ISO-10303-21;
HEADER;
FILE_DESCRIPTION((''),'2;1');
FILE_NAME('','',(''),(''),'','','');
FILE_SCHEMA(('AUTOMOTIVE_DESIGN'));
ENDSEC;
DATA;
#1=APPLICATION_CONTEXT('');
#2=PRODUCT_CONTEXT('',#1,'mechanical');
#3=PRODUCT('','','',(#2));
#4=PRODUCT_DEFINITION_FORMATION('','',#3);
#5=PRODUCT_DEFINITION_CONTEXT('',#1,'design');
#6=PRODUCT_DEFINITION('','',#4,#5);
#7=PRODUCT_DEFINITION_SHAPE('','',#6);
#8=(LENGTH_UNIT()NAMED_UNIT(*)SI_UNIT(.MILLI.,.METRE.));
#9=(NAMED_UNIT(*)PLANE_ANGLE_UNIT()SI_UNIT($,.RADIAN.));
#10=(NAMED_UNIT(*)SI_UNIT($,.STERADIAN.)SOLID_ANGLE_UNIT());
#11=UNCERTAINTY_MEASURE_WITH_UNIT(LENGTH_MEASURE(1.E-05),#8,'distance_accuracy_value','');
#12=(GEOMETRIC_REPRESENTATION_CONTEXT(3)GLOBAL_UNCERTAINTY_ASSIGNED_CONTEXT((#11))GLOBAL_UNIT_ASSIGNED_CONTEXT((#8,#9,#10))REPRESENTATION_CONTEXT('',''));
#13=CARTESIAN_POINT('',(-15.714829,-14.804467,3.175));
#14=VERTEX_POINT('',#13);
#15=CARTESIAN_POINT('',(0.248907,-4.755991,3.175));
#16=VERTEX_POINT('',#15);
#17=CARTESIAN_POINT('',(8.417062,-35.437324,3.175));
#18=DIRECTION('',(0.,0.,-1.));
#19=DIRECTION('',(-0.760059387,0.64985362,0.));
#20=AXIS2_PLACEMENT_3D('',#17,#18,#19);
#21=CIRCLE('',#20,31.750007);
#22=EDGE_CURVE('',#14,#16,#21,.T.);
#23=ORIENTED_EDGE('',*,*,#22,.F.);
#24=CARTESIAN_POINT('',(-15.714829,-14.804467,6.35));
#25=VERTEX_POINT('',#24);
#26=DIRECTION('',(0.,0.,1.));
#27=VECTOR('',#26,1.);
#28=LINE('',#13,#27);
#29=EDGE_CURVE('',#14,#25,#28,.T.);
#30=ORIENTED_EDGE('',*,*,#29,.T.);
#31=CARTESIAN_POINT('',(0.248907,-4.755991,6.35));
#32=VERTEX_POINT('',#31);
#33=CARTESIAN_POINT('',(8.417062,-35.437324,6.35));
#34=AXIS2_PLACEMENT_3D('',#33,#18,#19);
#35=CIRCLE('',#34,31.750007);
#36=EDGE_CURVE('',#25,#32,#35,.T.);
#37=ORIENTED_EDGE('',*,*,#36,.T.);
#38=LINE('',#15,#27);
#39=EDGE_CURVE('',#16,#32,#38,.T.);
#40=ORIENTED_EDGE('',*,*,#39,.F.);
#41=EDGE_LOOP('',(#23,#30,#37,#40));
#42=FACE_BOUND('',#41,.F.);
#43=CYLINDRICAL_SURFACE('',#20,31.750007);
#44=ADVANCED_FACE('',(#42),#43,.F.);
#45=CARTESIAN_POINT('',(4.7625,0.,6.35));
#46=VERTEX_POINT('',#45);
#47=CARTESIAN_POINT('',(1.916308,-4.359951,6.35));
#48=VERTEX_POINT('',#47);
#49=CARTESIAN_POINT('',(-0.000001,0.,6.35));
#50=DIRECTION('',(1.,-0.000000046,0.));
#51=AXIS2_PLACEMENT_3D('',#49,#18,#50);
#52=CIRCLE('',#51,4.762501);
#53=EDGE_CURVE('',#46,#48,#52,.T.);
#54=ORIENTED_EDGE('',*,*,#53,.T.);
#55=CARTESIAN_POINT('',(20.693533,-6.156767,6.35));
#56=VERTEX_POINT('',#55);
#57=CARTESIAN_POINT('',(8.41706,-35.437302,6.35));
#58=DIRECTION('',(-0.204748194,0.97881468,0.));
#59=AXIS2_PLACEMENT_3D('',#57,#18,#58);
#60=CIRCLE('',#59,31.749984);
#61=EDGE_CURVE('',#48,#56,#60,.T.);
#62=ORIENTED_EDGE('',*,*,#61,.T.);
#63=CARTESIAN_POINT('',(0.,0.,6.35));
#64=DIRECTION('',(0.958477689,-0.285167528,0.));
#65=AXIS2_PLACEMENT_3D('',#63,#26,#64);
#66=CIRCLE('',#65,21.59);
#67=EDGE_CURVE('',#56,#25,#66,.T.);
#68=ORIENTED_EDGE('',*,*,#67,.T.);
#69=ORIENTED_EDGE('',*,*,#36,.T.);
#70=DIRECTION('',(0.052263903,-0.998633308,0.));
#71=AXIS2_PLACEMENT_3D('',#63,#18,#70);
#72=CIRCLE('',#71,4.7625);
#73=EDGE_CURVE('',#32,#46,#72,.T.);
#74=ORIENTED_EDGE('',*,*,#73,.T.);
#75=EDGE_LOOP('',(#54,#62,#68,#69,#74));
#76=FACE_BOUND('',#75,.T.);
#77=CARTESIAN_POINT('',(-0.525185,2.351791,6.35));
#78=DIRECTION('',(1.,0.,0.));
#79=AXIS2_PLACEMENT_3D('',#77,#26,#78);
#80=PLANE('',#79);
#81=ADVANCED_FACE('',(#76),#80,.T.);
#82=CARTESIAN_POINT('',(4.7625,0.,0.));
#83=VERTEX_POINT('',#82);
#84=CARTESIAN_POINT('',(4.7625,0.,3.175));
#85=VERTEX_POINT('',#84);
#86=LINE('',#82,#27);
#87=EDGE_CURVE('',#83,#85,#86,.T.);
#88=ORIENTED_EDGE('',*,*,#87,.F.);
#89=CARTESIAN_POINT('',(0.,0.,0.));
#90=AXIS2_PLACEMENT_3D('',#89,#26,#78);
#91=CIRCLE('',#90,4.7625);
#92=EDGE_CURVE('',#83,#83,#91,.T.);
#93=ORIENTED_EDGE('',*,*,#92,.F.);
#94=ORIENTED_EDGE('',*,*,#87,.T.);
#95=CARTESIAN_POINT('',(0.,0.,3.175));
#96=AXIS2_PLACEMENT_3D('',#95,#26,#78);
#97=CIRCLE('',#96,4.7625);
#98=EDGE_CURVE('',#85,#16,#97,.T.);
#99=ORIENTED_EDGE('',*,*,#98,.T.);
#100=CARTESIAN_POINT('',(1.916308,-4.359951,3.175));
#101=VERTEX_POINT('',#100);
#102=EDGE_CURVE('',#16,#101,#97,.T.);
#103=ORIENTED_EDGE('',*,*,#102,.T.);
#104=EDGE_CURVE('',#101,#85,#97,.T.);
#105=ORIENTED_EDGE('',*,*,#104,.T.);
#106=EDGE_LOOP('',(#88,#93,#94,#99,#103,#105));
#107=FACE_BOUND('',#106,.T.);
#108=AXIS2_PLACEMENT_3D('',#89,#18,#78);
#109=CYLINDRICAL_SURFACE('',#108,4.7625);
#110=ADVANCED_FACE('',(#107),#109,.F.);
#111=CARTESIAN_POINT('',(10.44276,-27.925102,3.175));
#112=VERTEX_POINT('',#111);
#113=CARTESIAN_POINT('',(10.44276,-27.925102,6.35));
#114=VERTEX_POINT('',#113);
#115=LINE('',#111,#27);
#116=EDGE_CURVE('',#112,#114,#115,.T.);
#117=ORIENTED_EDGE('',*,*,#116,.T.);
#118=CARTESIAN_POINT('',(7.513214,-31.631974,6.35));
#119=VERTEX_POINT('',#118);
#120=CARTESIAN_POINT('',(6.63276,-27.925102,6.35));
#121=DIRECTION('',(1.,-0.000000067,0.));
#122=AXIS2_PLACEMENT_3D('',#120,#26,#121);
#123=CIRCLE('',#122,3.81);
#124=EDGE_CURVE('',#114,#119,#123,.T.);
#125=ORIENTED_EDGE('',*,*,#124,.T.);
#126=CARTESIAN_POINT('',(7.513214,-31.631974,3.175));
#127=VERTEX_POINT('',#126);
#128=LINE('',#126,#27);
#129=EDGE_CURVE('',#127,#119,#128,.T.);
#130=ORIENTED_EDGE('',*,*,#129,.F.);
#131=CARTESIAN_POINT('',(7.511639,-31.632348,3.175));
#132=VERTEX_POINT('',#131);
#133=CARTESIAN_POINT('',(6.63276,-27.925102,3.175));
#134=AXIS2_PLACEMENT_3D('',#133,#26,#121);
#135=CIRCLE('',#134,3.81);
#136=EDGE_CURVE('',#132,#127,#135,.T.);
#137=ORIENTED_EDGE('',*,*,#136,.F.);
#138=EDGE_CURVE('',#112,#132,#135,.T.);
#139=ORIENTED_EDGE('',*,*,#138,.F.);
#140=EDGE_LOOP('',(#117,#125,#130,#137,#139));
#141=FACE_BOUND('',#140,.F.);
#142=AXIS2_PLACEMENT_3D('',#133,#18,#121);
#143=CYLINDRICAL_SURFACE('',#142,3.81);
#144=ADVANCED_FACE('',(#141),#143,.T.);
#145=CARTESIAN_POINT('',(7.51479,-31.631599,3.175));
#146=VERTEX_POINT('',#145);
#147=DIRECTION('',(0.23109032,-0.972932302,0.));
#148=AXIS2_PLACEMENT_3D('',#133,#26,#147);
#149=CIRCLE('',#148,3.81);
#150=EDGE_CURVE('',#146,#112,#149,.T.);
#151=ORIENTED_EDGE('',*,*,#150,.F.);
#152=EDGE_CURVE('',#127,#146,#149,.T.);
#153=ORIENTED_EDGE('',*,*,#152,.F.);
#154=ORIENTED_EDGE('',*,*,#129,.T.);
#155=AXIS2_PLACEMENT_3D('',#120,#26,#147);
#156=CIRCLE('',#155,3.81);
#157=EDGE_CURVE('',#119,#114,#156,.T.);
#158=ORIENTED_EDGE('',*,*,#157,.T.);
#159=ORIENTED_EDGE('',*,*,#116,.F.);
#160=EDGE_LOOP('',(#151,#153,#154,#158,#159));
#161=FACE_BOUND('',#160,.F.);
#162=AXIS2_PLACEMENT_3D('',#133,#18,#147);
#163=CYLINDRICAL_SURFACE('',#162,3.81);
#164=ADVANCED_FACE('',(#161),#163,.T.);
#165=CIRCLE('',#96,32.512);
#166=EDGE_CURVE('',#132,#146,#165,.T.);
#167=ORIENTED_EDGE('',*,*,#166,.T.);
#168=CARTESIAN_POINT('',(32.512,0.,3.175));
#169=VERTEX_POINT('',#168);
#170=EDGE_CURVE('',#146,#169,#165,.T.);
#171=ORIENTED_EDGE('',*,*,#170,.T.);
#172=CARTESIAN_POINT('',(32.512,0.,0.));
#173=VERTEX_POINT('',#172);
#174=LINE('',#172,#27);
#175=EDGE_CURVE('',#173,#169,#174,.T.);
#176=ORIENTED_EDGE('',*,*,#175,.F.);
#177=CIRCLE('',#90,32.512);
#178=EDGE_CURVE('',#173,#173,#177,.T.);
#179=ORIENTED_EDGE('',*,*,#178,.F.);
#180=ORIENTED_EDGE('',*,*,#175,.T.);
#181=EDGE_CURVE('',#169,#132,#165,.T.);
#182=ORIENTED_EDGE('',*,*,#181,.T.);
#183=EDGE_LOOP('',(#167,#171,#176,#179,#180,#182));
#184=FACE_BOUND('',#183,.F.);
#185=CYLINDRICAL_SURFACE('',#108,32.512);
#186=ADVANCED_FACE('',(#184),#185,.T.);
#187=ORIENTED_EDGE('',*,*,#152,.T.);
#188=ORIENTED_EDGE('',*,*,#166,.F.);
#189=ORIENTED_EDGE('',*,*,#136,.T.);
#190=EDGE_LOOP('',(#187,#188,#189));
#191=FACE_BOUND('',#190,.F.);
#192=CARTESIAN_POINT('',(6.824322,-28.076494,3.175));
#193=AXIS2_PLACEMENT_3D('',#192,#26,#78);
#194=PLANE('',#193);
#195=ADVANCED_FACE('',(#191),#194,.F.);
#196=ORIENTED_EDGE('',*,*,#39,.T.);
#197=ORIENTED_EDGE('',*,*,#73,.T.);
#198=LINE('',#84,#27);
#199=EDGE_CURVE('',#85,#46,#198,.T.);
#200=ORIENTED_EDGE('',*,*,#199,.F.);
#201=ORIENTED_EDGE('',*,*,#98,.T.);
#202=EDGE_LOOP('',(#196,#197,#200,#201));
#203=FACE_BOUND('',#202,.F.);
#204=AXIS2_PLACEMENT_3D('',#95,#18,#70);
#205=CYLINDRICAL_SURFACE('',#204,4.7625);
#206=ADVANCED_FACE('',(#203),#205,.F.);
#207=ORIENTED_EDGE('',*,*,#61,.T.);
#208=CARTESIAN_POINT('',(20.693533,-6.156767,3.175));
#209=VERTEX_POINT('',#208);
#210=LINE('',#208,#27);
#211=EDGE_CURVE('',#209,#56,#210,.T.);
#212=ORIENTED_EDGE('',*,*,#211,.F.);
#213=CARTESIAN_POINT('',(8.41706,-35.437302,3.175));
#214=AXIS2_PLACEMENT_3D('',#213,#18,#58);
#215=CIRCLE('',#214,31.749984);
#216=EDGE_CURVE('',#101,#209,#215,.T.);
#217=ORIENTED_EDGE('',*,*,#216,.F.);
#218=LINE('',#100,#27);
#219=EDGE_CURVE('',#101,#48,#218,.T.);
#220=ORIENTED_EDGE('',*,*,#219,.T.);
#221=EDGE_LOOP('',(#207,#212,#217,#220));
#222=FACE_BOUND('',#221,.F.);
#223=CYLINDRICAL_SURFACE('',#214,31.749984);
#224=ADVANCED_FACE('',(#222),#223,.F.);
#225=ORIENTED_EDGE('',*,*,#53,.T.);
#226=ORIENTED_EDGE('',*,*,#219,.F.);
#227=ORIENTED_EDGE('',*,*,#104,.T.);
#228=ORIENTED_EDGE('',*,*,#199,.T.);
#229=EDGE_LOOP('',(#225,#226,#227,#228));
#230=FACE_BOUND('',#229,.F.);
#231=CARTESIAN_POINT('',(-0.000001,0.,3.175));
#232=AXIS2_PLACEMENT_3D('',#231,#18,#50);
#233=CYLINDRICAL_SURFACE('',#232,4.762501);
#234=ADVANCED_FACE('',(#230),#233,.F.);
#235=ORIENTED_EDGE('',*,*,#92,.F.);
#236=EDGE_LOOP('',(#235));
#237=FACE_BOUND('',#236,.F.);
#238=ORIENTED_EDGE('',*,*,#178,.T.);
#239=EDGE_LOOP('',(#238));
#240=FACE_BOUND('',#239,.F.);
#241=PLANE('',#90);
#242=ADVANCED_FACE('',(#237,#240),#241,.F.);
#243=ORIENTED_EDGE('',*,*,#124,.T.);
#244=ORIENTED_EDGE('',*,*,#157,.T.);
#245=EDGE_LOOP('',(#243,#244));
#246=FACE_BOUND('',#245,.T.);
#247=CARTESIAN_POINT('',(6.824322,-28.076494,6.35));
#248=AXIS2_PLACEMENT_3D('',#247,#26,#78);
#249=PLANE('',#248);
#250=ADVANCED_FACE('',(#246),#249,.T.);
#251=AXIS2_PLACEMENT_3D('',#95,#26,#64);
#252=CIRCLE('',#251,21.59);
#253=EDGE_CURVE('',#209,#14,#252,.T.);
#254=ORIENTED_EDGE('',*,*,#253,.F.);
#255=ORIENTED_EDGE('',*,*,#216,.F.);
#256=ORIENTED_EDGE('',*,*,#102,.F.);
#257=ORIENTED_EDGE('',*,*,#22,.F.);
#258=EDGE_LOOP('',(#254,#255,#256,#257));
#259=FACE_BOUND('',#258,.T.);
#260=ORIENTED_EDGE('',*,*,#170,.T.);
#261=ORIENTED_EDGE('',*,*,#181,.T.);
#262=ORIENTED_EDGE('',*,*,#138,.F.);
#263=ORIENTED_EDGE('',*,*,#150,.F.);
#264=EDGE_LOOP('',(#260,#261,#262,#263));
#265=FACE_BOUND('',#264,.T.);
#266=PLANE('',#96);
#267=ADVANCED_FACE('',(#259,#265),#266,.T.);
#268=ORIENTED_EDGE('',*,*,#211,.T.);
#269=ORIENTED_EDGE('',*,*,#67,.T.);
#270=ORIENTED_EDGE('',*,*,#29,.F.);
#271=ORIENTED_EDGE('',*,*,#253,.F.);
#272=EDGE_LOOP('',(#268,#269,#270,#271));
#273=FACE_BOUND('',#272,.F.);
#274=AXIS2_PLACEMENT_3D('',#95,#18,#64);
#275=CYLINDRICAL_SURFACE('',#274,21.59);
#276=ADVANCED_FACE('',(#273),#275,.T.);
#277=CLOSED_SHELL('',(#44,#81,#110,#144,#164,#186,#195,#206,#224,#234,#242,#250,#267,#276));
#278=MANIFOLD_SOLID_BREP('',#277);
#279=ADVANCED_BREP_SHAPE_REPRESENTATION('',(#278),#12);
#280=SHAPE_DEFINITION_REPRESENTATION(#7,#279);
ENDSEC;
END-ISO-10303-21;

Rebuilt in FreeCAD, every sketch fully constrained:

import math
import FreeCAD as App
import Part
import Sketcher

V = App.Vector
Q = App.Units.Quantity

doc = App.newDocument("Part")
body = doc.addObject("PartDesign::Body", "Body")

# Sketch on XY plane
sketch1 = body.newObject("Sketcher::SketchObject", "Sketch")
sketch1.AttachmentSupport = (doc.getObject("XY_Plane"), [""])
sketch1.MapMode = "FlatFace"
sketch1.addGeometry([
    Part.Circle(V(0, 0, 0), V(0, 0, 1), 32.5),
    Part.Circle(V(0, 0, 0), V(0, 0, 1), 4.8),
], False)
sketch1.addConstraint([
    Sketcher.Constraint("Coincident", 0, 3, -1, 1),
    Sketcher.Constraint("Coincident", 1, 3, -1, 1),
    Sketcher.Constraint("Diameter", 0, Q("2.56 in")),
    Sketcher.Constraint("Diameter", 1, Q("0.375 in")),
])
pad1 = body.newObject("PartDesign::Pad", "Pad")
pad1.Profile = sketch1
pad1.Length = Q("0.125 in")

# Sketch on XY plane
sketch2 = body.newObject("Sketcher::SketchObject", "Sketch001")
sketch2.AttachmentSupport = (doc.getObject("XY_Plane"), [""])
sketch2.MapMode = "FlatFace"
sketch2.AttachmentOffset = App.Placement(V(0, 0, 0.125 * 25.4), App.Rotation())
sketch2.addGeometry([
    Part.ArcOfCircle(Part.Circle(V(8.4, -35.4, 0), V(0, 0, 1), 31.7), math.radians(67), math.radians(102)),  # 0
    Part.ArcOfCircle(Part.Circle(V(0, 0, 0), V(0, 0, 1), 21.6), math.radians(-17), math.radians(223)),  # 1
    Part.ArcOfCircle(Part.Circle(V(8.4, -35.4, 0), V(0, 0, 1), 31.8), math.radians(105), math.radians(139)),  # 2
    Part.ArcOfCircle(Part.Circle(V(0, 0, 0), V(0, 0, 1), 4.8), math.radians(0), math.radians(273)),  # 3
    Part.ArcOfCircle(Part.Circle(V(0, 0, 0), V(0, 0, 1), 4.8), math.radians(-66), math.radians(0)),  # 4
    Part.ArcOfCircle(Part.Circle(V(6.6, -27.9, 0), V(0, 0, 1), 3.8), math.radians(-77), math.radians(0)),  # 5
    Part.ArcOfCircle(Part.Circle(V(6.6, -27.9, 0), V(0, 0, 1), 3.8), math.radians(0), math.radians(283)),  # 6
], False)
sketch2.addConstraint([
    Sketcher.Constraint("Coincident", 0, 1, 1, 1),
    Sketcher.Constraint("Coincident", 1, 2, 2, 2),
    Sketcher.Constraint("Coincident", 2, 1, 3, 2),
    Sketcher.Constraint("Tangent", 3, 1, 4, 2),
    Sketcher.Constraint("Coincident", 4, 1, 0, 2),
    Sketcher.Constraint("Tangent", 5, 1, 6, 2),
    Sketcher.Constraint("Coincident", 6, 1, 5, 2),
    Sketcher.Constraint("Coincident", 1, 3, -1, 1),
    Sketcher.Constraint("Coincident", 3, 3, -1, 1),
    Sketcher.Constraint("Equal", 3, 4),
    Sketcher.Constraint("PointOnObject", 3, 1, -1),
    Sketcher.Constraint("Horizontal", 5, 3, 6, 1),
    Sketcher.Constraint("Radius", 1, Q("0.85 in")),
    Sketcher.Constraint("Radius", 5, Q("0.15 in")),
    Sketcher.Constraint("Radius", 3, Q("0.1875 in")),
    Sketcher.Constraint("Radius", 0, 31.749984),
    Sketcher.Constraint("Radius", 2, 31.750007),
    Sketcher.Constraint("DistanceY", 0, 3, -1, 1, 35.437302),
    Sketcher.Constraint("DistanceY", 5, 3, -1, 1, 27.925102),
    Sketcher.Constraint("DistanceX", 5, 3, 0, 3, 1.7843),
    Sketcher.Constraint("DistanceX", 2, 1, 4, 1, 1.667401),
    Sketcher.Constraint("DistanceX", -1, 1, 0, 3, 8.41706),
    Sketcher.Constraint("DistanceX", 1, 2, -1, 1, 15.714829),
    Sketcher.Constraint("DistanceX", 5, 1, 2, 3, 0.903848),
])
pad2 = body.newObject("PartDesign::Pad", "Pad001")
pad2.Profile = sketch2
pad2.Length = Q("0.125 in")

doc.recompute()
